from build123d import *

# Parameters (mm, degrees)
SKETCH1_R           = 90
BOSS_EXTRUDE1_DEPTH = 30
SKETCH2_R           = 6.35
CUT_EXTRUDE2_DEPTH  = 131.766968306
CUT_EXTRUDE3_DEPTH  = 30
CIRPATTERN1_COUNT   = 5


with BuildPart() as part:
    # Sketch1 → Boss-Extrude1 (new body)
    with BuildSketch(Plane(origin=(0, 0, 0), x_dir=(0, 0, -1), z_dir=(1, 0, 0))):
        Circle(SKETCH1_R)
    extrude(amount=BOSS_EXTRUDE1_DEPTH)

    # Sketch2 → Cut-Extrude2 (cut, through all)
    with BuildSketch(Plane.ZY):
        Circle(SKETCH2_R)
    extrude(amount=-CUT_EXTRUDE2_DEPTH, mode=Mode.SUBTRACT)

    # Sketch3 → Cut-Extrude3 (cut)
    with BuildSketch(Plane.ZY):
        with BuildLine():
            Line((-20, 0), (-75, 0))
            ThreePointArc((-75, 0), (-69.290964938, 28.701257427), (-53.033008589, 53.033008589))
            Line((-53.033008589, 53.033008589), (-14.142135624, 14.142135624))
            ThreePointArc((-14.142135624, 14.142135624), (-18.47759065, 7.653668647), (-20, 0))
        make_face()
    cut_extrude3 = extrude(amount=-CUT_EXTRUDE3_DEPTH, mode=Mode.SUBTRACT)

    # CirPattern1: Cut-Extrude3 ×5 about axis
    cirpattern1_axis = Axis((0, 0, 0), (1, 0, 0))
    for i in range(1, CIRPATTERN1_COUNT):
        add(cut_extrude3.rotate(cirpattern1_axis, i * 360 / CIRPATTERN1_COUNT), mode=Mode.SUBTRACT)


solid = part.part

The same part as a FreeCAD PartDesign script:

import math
import FreeCAD as App
import Part
import Sketcher
Q = App.Units.Quantity

doc = App.newDocument("Part")
body = doc.addObject("PartDesign::Body", "Body")

# Sketch on YZ plane
sketch1 = doc.addObject("Sketcher::SketchObject", "Sketch")
body.addObject(sketch1)
sketch1.AttachmentSupport = (doc.YZ_Plane, [""])
sketch1.MapMode = "FlatFace"
sketch1.addGeometry(Part.Circle(App.Vector(0, 0, 0), App.Vector(0, 0, 1), 90), False)
sketch1.addConstraint([
    Sketcher.Constraint("Coincident", 0, 3, -1, 1),
    Sketcher.Constraint("Diameter", 0, Q("180 mm")),
])
pad1 = doc.addObject("PartDesign::Pad", "Pad")
body.addObject(pad1)
pad1.Profile = sketch1
pad1.Length = 30

# Sketch on YZ plane
sketch2 = doc.addObject("Sketcher::SketchObject", "Sketch001")
body.addObject(sketch2)
sketch2.AttachmentSupport = (doc.YZ_Plane, [""])
sketch2.MapMode = "FlatFace"
sketch2.addGeometry(Part.Circle(App.Vector(0, 0, 0), App.Vector(0, 0, 1), 6), False)
sketch2.addConstraint([
    Sketcher.Constraint("Coincident", 0, 3, -1, 1),
    Sketcher.Constraint("Diameter", 0, Q("12.7 mm")),
])
pocket1 = doc.addObject("PartDesign::Pocket", "Pocket")
body.addObject(pocket1)
pocket1.Profile = sketch2
pocket1.Type = "ThroughAll"
pocket1.Reversed = True

# Sketch on YZ plane
sketch3 = doc.addObject("Sketcher::SketchObject", "Sketch002")
body.addObject(sketch3)
sketch3.AttachmentSupport = (doc.YZ_Plane, [""])
sketch3.MapMode = "FlatFace"
sketch3.addGeometry([
    Part.LineSegment(App.Vector(0, -75, 0), App.Vector(0, -20, 0)),
    Part.ArcOfCircle(Part.Circle(App.Vector(0, 0, 0), App.Vector(0, 0, 1), 20), math.radians(-90), math.radians(-45)),
    Part.LineSegment(App.Vector(14, -14, 0), App.Vector(53, -53, 0)),
    Part.ArcOfCircle(Part.Circle(App.Vector(0, 0, 0), App.Vector(0, 0, 1), 75), math.radians(-90), math.radians(-45)),
], False)
sketch3.addConstraint([
    Sketcher.Constraint("Coincident", 0, 2, 1, 1),
    Sketcher.Constraint("Coincident", 1, 2, 2, 1),
    Sketcher.Constraint("Coincident", 2, 2, 3, 2),
    Sketcher.Constraint("Coincident", 3, 1, 0, 1),
    Sketcher.Constraint("Vertical", 0),
    Sketcher.Constraint("Coincident", 1, 3, -1, 1),
    Sketcher.Constraint("Coincident", 3, 3, -1, 1),
    Sketcher.Constraint("PointOnObject", 0, 2, -2),
    Sketcher.Constraint("Radius", 1, Q("20 mm")),
    Sketcher.Constraint("Radius", 3, Q("75 mm")),
    Sketcher.Constraint("Angle", 2, Q("-45 deg")),
    Sketcher.Constraint("DistanceX", -1, 1, 2, 2, Q("53.033009 mm")),
])
pocket2 = doc.addObject("PartDesign::Pocket", "Pocket001")
body.addObject(pocket2)
pocket2.Profile = sketch3
pocket2.Length = 30
pocket2.Reversed = True
doc.recompute()

polarpattern = doc.addObject("PartDesign::PolarPattern", "PolarPattern")
body.addObject(polarpattern)
polarpattern.Originals = [pocket2]
polarpattern.Axis = (doc.X_Axis, [""])
polarpattern.Angle = 360
polarpattern.Occurrences = 5
body.Tip = polarpattern

doc.recompute()
